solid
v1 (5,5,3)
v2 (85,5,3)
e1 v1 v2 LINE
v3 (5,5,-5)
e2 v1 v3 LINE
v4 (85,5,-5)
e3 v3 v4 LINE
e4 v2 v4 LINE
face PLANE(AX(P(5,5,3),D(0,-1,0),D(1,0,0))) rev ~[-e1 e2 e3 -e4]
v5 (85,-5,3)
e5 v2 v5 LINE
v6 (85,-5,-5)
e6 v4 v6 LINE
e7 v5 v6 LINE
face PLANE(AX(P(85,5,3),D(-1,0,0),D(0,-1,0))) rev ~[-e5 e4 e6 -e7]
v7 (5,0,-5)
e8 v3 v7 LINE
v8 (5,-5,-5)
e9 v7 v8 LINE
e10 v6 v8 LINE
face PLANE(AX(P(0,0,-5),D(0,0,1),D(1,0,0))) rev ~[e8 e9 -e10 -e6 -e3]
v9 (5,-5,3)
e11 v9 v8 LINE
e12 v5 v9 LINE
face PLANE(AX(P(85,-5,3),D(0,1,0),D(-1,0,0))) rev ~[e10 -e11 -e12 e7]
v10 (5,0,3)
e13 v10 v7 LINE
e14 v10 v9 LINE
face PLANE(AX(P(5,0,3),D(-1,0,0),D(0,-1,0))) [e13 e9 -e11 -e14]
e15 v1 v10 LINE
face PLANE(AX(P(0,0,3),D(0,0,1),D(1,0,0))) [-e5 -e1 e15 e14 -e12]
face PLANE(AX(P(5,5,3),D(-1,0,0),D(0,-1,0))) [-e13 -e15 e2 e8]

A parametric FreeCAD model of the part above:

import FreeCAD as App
import Part
import Sketcher

V = App.Vector
Q = App.Units.Quantity


def add_polygon(sketch, points):
    """Adds a closed chain of lines whose ends are joined by coincident constraints."""
    first, n = sketch.GeometryCount, len(points)
    for a, b in zip(points, points[1:] + points[:1]):
        sketch.addGeometry(Part.LineSegment(App.Vector(*a, 0), App.Vector(*b, 0)), False)
    for i in range(n):
        sketch.addConstraint(Sketcher.Constraint("Coincident", first + i, 2, first + (i + 1) % n, 1))

doc = App.newDocument("Part")
body = doc.addObject("PartDesign::Body", "Body")

# Sketch on XY plane
sketch1 = body.newObject("Sketcher::SketchObject", "Sketch")
sketch1.AttachmentSupport = (doc.getObject("XY_Plane"), [""])
sketch1.MapMode = "FlatFace"
sketch1.AttachmentOffset = App.Placement(V(0, 0, 3), App.Rotation())
add_polygon(sketch1, [(85, 5), (5, 5), (5, -5), (85, -5)])  # lines 0-3
sketch1.addConstraint([
    Sketcher.Constraint("Horizontal", 0),
    Sketcher.Constraint("Vertical", 1),
    Sketcher.Constraint("Horizontal", 2),
    Sketcher.Constraint("Vertical", 3),
    Sketcher.Constraint("DistanceX", 0, 2, 0, 1, Q("80 mm")),
    Sketcher.Constraint("DistanceX", -1, 1, 0, 2, Q("5 mm")),
    Sketcher.Constraint("DistanceY", -1, 1, 0, 2, Q("5 mm")),
    Sketcher.Constraint("DistanceY", 1, 2, -1, 1, Q("5 mm")),
])
pad1 = body.newObject("PartDesign::Pad", "Pad")
pad1.Profile = sketch1
pad1.Length = 8
pad1.Reversed = True

doc.recompute()
